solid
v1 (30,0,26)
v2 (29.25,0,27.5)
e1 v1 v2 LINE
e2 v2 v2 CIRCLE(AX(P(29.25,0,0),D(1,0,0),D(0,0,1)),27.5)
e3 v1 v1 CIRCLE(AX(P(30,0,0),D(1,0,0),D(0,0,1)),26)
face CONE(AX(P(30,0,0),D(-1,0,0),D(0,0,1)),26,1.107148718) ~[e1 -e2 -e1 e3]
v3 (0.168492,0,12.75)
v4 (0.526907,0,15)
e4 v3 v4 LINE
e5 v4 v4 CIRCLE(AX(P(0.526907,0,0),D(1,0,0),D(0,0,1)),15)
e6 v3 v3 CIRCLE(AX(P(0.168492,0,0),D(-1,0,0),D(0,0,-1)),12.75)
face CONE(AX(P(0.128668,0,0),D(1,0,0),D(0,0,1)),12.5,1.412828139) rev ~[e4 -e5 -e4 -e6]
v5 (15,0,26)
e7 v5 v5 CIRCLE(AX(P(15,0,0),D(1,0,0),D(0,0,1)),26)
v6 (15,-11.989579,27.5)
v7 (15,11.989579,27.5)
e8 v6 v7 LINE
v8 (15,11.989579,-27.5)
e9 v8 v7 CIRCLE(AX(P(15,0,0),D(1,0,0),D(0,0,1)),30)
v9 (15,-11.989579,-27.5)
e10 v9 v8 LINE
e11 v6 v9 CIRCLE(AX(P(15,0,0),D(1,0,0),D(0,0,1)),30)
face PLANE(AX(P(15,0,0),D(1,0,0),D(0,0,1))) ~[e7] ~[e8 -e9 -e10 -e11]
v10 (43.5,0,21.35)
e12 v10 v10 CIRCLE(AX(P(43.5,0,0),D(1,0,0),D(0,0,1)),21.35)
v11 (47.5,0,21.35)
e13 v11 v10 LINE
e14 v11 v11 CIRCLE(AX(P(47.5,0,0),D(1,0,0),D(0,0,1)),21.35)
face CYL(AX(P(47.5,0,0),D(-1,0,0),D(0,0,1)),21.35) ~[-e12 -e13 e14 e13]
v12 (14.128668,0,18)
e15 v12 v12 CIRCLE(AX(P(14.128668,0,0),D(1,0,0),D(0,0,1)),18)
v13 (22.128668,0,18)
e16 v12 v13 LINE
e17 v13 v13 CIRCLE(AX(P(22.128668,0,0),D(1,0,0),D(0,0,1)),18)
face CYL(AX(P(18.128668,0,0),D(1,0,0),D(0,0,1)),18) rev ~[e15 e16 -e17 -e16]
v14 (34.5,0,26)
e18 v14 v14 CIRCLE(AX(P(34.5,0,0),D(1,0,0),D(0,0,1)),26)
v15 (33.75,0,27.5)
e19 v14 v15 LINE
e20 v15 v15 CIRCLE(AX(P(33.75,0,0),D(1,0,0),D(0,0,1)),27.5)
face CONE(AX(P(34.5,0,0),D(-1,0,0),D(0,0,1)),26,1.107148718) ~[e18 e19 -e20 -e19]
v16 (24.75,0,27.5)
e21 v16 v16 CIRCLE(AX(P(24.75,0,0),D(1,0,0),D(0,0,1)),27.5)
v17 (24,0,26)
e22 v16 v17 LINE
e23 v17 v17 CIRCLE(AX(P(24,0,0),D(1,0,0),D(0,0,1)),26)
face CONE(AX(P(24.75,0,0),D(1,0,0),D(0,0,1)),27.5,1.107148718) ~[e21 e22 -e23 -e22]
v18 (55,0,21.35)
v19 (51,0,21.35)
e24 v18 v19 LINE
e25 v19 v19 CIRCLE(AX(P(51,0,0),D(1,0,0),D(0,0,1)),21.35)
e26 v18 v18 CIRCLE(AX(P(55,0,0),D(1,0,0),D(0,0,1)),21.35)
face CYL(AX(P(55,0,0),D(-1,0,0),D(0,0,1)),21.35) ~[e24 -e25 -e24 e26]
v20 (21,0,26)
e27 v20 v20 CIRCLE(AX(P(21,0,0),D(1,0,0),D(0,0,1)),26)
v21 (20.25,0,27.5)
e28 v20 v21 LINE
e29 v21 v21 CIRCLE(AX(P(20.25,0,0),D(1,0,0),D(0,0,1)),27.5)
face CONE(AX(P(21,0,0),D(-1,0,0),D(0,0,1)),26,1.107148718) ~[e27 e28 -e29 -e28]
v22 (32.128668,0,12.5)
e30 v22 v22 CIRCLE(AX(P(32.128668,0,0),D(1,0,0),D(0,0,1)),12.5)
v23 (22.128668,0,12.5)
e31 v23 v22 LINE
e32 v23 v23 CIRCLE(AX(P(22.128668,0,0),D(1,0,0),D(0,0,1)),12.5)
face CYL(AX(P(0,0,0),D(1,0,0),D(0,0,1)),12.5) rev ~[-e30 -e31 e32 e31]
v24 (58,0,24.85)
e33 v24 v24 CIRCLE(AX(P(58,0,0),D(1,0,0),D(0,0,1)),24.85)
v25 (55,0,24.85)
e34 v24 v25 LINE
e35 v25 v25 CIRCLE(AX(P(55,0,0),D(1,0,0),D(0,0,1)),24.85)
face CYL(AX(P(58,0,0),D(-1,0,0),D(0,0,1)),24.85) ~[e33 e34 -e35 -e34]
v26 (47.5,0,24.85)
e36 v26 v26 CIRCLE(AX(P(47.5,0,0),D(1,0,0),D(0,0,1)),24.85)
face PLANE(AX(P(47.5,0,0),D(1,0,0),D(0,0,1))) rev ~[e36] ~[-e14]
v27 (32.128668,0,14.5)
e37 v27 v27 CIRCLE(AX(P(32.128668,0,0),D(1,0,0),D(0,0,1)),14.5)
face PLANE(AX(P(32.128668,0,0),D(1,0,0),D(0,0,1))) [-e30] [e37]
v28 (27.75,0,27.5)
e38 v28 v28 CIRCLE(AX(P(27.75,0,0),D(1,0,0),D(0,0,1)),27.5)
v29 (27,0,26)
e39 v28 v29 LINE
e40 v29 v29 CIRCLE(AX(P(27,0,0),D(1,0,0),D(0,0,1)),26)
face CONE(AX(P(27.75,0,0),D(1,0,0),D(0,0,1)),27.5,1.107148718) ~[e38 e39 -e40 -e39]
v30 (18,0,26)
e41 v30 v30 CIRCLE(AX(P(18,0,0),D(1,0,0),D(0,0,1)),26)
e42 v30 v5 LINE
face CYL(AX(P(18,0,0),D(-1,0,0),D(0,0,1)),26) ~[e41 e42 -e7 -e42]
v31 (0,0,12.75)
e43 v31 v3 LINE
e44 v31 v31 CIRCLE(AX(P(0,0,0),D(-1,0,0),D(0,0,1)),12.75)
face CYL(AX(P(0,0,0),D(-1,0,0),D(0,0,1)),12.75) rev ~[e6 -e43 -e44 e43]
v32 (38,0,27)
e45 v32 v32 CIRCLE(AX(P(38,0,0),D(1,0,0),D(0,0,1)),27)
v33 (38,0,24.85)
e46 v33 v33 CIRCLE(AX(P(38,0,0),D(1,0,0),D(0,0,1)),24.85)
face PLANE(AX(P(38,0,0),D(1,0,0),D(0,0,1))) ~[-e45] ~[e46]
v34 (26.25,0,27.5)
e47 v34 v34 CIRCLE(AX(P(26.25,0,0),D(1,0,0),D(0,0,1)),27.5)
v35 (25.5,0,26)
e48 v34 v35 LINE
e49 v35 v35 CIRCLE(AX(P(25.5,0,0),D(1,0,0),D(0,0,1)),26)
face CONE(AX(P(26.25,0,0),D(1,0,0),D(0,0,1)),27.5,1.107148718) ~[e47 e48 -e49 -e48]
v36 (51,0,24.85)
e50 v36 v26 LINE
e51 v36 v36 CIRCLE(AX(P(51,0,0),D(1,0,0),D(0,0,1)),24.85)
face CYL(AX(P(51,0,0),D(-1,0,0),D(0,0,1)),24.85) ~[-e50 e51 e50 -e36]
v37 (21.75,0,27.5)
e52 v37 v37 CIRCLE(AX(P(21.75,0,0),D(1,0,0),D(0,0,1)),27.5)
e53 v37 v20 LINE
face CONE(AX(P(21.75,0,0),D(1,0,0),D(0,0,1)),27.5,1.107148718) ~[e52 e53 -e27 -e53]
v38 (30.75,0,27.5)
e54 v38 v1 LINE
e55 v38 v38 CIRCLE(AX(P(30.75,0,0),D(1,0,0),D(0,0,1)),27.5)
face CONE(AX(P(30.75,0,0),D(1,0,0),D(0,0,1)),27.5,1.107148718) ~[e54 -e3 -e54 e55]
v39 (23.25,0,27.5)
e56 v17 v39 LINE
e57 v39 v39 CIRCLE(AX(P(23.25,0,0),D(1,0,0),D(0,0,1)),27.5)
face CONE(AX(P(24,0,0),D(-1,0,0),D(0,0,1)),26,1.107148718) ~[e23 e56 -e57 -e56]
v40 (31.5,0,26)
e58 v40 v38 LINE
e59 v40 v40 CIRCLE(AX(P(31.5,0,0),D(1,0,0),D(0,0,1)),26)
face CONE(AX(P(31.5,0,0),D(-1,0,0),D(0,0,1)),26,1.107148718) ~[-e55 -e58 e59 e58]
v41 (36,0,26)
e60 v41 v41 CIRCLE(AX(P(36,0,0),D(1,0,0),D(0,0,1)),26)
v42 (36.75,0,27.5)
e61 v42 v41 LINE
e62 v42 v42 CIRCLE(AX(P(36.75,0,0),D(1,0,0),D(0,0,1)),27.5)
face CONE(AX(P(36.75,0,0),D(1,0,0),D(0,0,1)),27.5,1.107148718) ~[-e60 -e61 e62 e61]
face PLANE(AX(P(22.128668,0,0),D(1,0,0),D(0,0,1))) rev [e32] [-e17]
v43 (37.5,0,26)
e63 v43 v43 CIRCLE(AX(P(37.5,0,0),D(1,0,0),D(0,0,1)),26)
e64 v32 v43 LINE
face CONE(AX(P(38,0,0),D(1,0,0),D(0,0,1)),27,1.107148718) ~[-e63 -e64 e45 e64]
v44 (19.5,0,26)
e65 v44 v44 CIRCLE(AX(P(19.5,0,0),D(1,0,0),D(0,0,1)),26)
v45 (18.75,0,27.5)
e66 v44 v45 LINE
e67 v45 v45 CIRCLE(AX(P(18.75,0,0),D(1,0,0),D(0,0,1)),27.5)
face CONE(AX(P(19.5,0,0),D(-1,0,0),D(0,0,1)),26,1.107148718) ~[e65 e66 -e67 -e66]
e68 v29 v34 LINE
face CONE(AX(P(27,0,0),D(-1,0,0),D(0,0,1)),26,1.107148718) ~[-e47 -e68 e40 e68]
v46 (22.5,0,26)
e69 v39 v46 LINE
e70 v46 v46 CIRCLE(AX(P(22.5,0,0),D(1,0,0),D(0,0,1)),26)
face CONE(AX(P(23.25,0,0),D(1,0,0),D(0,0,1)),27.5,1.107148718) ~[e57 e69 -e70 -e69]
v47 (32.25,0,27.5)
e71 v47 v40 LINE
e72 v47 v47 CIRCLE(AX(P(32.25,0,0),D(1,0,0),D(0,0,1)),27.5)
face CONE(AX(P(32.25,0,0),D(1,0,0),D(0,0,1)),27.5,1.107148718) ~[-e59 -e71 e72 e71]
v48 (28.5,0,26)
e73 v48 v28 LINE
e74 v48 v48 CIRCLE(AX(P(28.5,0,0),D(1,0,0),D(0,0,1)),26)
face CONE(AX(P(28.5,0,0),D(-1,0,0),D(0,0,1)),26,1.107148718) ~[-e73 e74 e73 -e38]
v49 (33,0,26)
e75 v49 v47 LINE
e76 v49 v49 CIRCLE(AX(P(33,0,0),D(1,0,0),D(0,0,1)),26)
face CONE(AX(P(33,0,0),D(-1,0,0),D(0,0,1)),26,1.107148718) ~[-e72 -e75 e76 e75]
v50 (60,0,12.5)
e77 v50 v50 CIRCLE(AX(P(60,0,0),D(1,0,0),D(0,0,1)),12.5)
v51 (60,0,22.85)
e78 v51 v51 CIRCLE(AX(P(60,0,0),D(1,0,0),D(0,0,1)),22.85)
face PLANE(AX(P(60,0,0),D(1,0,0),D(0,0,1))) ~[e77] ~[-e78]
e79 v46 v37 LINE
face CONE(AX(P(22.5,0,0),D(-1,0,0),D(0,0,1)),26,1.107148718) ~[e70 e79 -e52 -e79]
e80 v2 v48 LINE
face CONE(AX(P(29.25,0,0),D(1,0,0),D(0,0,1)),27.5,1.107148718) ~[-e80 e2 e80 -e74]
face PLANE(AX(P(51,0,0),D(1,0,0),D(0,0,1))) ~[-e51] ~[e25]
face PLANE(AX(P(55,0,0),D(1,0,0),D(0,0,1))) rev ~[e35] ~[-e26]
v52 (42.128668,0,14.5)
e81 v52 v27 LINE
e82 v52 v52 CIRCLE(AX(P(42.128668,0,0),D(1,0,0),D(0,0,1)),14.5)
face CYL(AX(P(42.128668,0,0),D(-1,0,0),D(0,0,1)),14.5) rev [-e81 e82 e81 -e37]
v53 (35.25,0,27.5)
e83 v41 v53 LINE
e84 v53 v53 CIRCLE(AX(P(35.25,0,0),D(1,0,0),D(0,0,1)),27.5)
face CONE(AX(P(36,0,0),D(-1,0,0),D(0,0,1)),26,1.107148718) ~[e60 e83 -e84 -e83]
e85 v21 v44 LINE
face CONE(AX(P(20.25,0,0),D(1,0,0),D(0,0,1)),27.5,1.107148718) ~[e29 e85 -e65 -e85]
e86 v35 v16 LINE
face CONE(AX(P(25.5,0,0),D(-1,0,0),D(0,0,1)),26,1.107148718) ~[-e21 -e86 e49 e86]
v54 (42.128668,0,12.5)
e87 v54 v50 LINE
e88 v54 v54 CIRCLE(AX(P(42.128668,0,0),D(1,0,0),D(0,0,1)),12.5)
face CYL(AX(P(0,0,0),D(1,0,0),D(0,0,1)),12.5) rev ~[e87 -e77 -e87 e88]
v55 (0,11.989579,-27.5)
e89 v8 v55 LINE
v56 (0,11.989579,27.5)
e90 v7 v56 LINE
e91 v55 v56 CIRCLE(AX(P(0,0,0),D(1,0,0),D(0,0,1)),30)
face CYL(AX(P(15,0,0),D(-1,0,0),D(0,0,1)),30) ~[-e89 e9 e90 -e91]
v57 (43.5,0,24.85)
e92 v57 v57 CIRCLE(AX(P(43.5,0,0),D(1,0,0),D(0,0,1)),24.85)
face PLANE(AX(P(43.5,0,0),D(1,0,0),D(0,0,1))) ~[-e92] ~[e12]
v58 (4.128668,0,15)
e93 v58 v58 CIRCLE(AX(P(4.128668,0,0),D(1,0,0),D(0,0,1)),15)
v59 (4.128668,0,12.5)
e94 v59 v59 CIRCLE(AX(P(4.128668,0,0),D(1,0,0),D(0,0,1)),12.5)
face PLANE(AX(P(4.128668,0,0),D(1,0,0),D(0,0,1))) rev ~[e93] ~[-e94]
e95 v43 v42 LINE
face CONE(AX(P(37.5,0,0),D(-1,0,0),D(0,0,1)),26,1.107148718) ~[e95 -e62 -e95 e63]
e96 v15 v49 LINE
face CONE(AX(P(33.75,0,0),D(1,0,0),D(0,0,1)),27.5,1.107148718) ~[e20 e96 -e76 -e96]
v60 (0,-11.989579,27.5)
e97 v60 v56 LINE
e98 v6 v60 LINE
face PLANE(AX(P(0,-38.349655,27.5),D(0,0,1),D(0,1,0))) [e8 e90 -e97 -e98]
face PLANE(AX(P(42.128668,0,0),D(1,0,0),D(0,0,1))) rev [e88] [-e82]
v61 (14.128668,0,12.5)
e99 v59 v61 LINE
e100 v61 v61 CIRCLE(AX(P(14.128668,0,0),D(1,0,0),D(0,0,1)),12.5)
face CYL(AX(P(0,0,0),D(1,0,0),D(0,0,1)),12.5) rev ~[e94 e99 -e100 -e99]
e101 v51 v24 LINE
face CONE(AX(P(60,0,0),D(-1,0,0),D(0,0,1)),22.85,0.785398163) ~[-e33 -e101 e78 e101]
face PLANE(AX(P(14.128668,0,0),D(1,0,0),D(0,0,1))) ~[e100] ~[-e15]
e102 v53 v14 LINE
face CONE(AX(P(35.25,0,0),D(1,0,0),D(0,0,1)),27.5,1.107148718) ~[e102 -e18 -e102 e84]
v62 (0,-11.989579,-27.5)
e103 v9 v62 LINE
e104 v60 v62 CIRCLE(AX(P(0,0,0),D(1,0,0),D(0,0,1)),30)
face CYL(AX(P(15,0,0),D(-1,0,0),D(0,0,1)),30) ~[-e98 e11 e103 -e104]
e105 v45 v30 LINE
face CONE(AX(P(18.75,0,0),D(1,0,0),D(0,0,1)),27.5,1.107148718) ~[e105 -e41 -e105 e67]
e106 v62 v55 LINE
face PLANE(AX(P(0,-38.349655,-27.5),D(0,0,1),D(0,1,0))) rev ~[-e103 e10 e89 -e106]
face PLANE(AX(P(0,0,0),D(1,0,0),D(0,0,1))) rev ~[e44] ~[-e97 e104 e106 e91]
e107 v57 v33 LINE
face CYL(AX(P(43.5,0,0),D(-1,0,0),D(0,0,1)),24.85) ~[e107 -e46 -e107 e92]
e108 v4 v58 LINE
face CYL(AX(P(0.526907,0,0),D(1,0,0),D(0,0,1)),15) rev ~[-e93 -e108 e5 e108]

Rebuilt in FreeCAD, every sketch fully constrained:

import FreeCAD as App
import Part
import Sketcher

V = App.Vector
Q = App.Units.Quantity


def add_polygon(sketch, points):
    """Adds a closed chain of lines whose ends are joined by coincident constraints."""
    first, n = sketch.GeometryCount, len(points)
    for a, b in zip(points, points[1:] + points[:1]):
        sketch.addGeometry(Part.LineSegment(App.Vector(*a, 0), App.Vector(*b, 0)), False)
    for i in range(n):
        sketch.addConstraint(Sketcher.Constraint("Coincident", first + i, 2, first + (i + 1) % n, 1))

doc = App.newDocument("Part")
body = doc.addObject("PartDesign::Body", "Body")

sketch1 = body.newObject("Sketcher::SketchObject", "Sketch")
sketch1.AttachmentSupport = (doc.getObject("XY_Plane"), [""])
sketch1.MapMode = "FlatFace"
add_polygon(sketch1, [(0, 12.5), (60, 12.5), (60, 22.9), (58, 24.9), (55, 24.9), (55, 21.4), (51, 21.4), (51, 24.9), (47.5, 24.9), (47.5, 21.4), (43.5, 21.4), (43.5, 24.9), (38, 24.9), (38, 27), (37.5, 26), (36.8, 27.5), (36, 26), (35.2, 27.5), (34.5, 26), (33.8, 27.5), (33, 26), (32.2, 27.5), (31.5, 26), (30.8, 27.5), (30, 26), (29.2, 27.5), (28.5, 26), (27.8, 27.5), (27, 26), (26.2, 27.5), (25.5, 26), (24.8, 27.5), (24, 26), (23.2, 27.5), (22.5, 26), (21.8, 27.5), (21, 26), (20.2, 27.5), (19.5, 26), (18.8, 27.5), (18, 26), (15, 26), (15, 30), (0, 30)])
sketch1.addConstraint(Sketcher.Constraint("Horizontal", 0))
sketch1.addConstraint(Sketcher.Constraint("Vertical", 1))
sketch1.addConstraint(Sketcher.Constraint("Horizontal", 3))
sketch1.addConstraint(Sketcher.Constraint("Vertical", 4))
sketch1.addConstraint(Sketcher.Constraint("Horizontal", 5))
sketch1.addConstraint(Sketcher.Constraint("Vertical", 6))
sketch1.addConstraint(Sketcher.Constraint("Horizontal", 7))
sketch1.addConstraint(Sketcher.Constraint("Vertical", 8))
sketch1.addConstraint(Sketcher.Constraint("Horizontal", 9))
sketch1.addConstraint(Sketcher.Constraint("Vertical", 10))
sketch1.addConstraint(Sketcher.Constraint("Horizontal", 11))
sketch1.addConstraint(Sketcher.Constraint("Vertical", 12))
sketch1.addConstraint(Sketcher.Constraint("Horizontal", 40))
sketch1.addConstraint(Sketcher.Constraint("Vertical", 41))
sketch1.addConstraint(Sketcher.Constraint("Horizontal", 42))
sketch1.addConstraint(Sketcher.Constraint("Vertical", 43))
sketch1.addConstraint(Sketcher.Constraint("PointOnObject", 42, 2, -2))
sketch1.addConstraint(Sketcher.Constraint("Parallel", 13, 15))
sketch1.addConstraint(Sketcher.Constraint("Parallel", 14, 16))
sketch1.addConstraint(Sketcher.Constraint("Parallel", 15, 17))
sketch1.addConstraint(Sketcher.Constraint("Parallel", 16, 18))
sketch1.addConstraint(Sketcher.Constraint("Parallel", 17, 19))
sketch1.addConstraint(Sketcher.Constraint("Parallel", 18, 20))
sketch1.addConstraint(Sketcher.Constraint("Parallel", 19, 21))
sketch1.addConstraint(Sketcher.Constraint("Parallel", 20, 22))
sketch1.addConstraint(Sketcher.Constraint("Parallel", 21, 23))
sketch1.addConstraint(Sketcher.Constraint("Parallel", 22, 24))
sketch1.addConstraint(Sketcher.Constraint("Parallel", 23, 25))
sketch1.addConstraint(Sketcher.Constraint("Parallel", 24, 26))
sketch1.addConstraint(Sketcher.Constraint("Parallel", 25, 27))
sketch1.addConstraint(Sketcher.Constraint("Parallel", 26, 28))
sketch1.addConstraint(Sketcher.Constraint("Parallel", 27, 29))
sketch1.addConstraint(Sketcher.Constraint("Parallel", 28, 30))
sketch1.addConstraint(Sketcher.Constraint("Parallel", 29, 31))
sketch1.addConstraint(Sketcher.Constraint("Parallel", 30, 32))
sketch1.addConstraint(Sketcher.Constraint("Parallel", 31, 33))
sketch1.addConstraint(Sketcher.Constraint("Parallel", 32, 34))
sketch1.addConstraint(Sketcher.Constraint("Parallel", 33, 35))
sketch1.addConstraint(Sketcher.Constraint("Parallel", 34, 36))
sketch1.addConstraint(Sketcher.Constraint("Parallel", 35, 37))
sketch1.addConstraint(Sketcher.Constraint("Parallel", 36, 38))
sketch1.addConstraint(Sketcher.Constraint("Parallel", 37, 39))
sketch1.addConstraint(Sketcher.Constraint("Horizontal", 3, 2, 6, 2))
sketch1.addConstraint(Sketcher.Constraint("Horizontal", 5, 2, 8, 2))
sketch1.addConstraint(Sketcher.Constraint("Horizontal", 7, 2, 10, 2))
sketch1.addConstraint(Sketcher.Constraint("Horizontal", 13, 2, 15, 2))
sketch1.addConstraint(Sketcher.Constraint("Horizontal", 14, 2, 16, 2))
sketch1.addConstraint(Sketcher.Constraint("Horizontal", 15, 2, 17, 2))
sketch1.addConstraint(Sketcher.Constraint("Horizontal", 16, 2, 18, 2))
sketch1.addConstraint(Sketcher.Constraint("Horizontal", 17, 2, 19, 2))
sketch1.addConstraint(Sketcher.Constraint("Horizontal", 18, 2, 20, 2))
sketch1.addConstraint(Sketcher.Constraint("Horizontal", 19, 2, 21, 2))
sketch1.addConstraint(Sketcher.Constraint("Horizontal", 20, 2, 22, 2))
sketch1.addConstraint(Sketcher.Constraint("Horizontal", 21, 2, 23, 2))
sketch1.addConstraint(Sketcher.Constraint("Horizontal", 22, 2, 24, 2))
sketch1.addConstraint(Sketcher.Constraint("Horizontal", 23, 2, 25, 2))
sketch1.addConstraint(Sketcher.Constraint("Horizontal", 24, 2, 26, 2))
sketch1.addConstraint(Sketcher.Constraint("Horizontal", 25, 2, 27, 2))
sketch1.addConstraint(Sketcher.Constraint("Horizontal", 26, 2, 28, 2))
sketch1.addConstraint(Sketcher.Constraint("Horizontal", 27, 2, 29, 2))
sketch1.addConstraint(Sketcher.Constraint("Horizontal", 28, 2, 30, 2))
sketch1.addConstraint(Sketcher.Constraint("Horizontal", 29, 2, 31, 2))
sketch1.addConstraint(Sketcher.Constraint("Horizontal", 30, 2, 32, 2))
sketch1.addConstraint(Sketcher.Constraint("Horizontal", 31, 2, 33, 2))
sketch1.addConstraint(Sketcher.Constraint("Horizontal", 32, 2, 34, 2))
sketch1.addConstraint(Sketcher.Constraint("Horizontal", 33, 2, 35, 2))
sketch1.addConstraint(Sketcher.Constraint("Horizontal", 34, 2, 36, 2))
sketch1.addConstraint(Sketcher.Constraint("Horizontal", 35, 2, 37, 2))
sketch1.addConstraint(Sketcher.Constraint("Horizontal", 36, 2, 38, 2))
sketch1.addConstraint(Sketcher.Constraint("Horizontal", 37, 2, 39, 2))
sketch1.addConstraint(Sketcher.Constraint("Equal", 5, 9))
sketch1.addConstraint(Sketcher.Constraint("Equal", 3, 40))
sketch1.addConstraint(Sketcher.Constraint("Equal", 7, 4))
sketch1.addConstraint(Sketcher.Constraint("Equal", 9, 41))
sketch1.addConstraint(Sketcher.Constraint("Equal", 14, 15))
sketch1.addConstraint(Sketcher.Constraint("DistanceX", 0, 1, 0, 2, Q("60 mm")))
sketch1.addConstraint(Sketcher.Constraint("DistanceX", 3, 2, 3, 1, Q("3 mm")))
sketch1.addConstraint(Sketcher.Constraint("DistanceX", 5, 2, 5, 1, Q("4 mm")))
sketch1.addConstraint(Sketcher.Constraint("DistanceX", 42, 2, 42, 1, Q("15 mm")))
sketch1.addConstraint(Sketcher.Constraint("Angle", 2, Q("135 deg")))
sketch1.addConstraint(Sketcher.Constraint("DistanceX", 7, 2, 7, 1, Q("3.5 mm")))
sketch1.addConstraint(Sketcher.Constraint("DistanceX", 11, 2, 11, 1, Q("5.5 mm")))
sketch1.addConstraint(Sketcher.Constraint("DistanceY", 43, 2, 43, 1, Q("17.5 mm")))
sketch1.addConstraint(Sketcher.Constraint("DistanceX", -1, 1, 2, 2, Q("58 mm")))
sketch1.addConstraint(Sketcher.Constraint("DistanceY", -1, 1, 12, 2, Q("27 mm")))
sketch1.addConstraint(Sketcher.Constraint("DistanceY", -1, 1, 13, 2, Q("26 mm")))
sketch1.addConstraint(Sketcher.Constraint("DistanceX", -1, 1, 15, 2, Q("36 mm")))
sketch1.addConstraint(Sketcher.Constraint("DistanceY", 1, 1, 1, 2, Q("10.35 mm")))
revolution = body.newObject("PartDesign::Revolution", "Revolution")
revolution.Profile = sketch1
revolution.ReferenceAxis = (sketch1, ["H_Axis"])
revolution.Angle = 360

sketch2 = body.newObject("Sketcher::SketchObject", "Sketch001")
sketch2.AttachmentSupport = (doc.getObject("YZ_Plane"), [""])
sketch2.MapMode = "FlatFace"
add_polygon(sketch2, [(41, -41), (-41, -41), (-41, 41), (41, 41)])
add_polygon(sketch2, [(-38, 28), (-38, -28), (38, -28), (38, 28)])
sketch2.addConstraint(Sketcher.Constraint("Horizontal", 0))
sketch2.addConstraint(Sketcher.Constraint("Vertical", 1))
sketch2.addConstraint(Sketcher.Constraint("Horizontal", 2))
sketch2.addConstraint(Sketcher.Constraint("Vertical", 3))
sketch2.addConstraint(Sketcher.Constraint("Vertical", 4))
sketch2.addConstraint(Sketcher.Constraint("Horizontal", 5))
sketch2.addConstraint(Sketcher.Constraint("Vertical", 6))
sketch2.addConstraint(Sketcher.Constraint("Horizontal", 7))
sketch2.addConstraint(Sketcher.Constraint("Symmetric", 0, 2, 2, 2, -1, 1))
sketch2.addConstraint(Sketcher.Constraint("Symmetric", 4, 2, 6, 2, -1, 1))
sketch2.addConstraint(Sketcher.Constraint("Equal", 2, 1))
sketch2.addConstraint(Sketcher.Constraint("DistanceY", 4, 2, 4, 1, Q("55 mm")))
sketch2.addConstraint(Sketcher.Constraint("DistanceX", 0, 2, 0, 1, Q("82.784 mm")))
sketch2.addConstraint(Sketcher.Constraint("DistanceX", 5, 1, 5, 2, Q("76.699311 mm")))
pocket1 = body.newObject("PartDesign::Pocket", "Pocket")
pocket1.Profile = sketch2
pocket1.Length = 17
pocket1.Reversed = True

sketch3 = body.newObject("Sketcher::SketchObject", "Sketch002")
sketch3.AttachmentSupport = (doc.getObject("XZ_Plane"), [""])
sketch3.MapMode = "FlatFace"
add_polygon(sketch3, [(4.1, -11.2), (4.1, -15), (0.5, -15), (0.1, -12.5), (0.1, -11.2)])
add_polygon(sketch3, [(14.1, -18), (14.1, -10.5), (22.1, -10.5), (22.1, -18)])
add_polygon(sketch3, [(32.1, -11.2), (42.1, -11.2), (42.1, -14.5), (32.1, -14.5)])
sketch3.addConstraint(Sketcher.Constraint("Vertical", 0))
sketch3.addConstraint(Sketcher.Constraint("Horizontal", 1))
sketch3.addConstraint(Sketcher.Constraint("Vertical", 3))
sketch3.addConstraint(Sketcher.Constraint("Horizontal", 4))
sketch3.addConstraint(Sketcher.Constraint("Vertical", 5))
sketch3.addConstraint(Sketcher.Constraint("Horizontal", 6))
sketch3.addConstraint(Sketcher.Constraint("Vertical", 7))
sketch3.addConstraint(Sketcher.Constraint("Horizontal", 8))
sketch3.addConstraint(Sketcher.Constraint("Horizontal", 9))
sketch3.addConstraint(Sketcher.Constraint("Vertical", 10))
sketch3.addConstraint(Sketcher.Constraint("Horizontal", 11))
sketch3.addConstraint(Sketcher.Constraint("Vertical", 12))
sketch3.addConstraint(Sketcher.Constraint("Horizontal", 4, 2, 9, 2))
sketch3.addConstraint(Sketcher.Constraint("DistanceX", 4, 1, 4, 2, Q("4 mm")))
sketch3.addConstraint(Sketcher.Constraint("DistanceX", 6, 1, 6, 2, Q("8 mm")))
sketch3.addConstraint(Sketcher.Constraint("DistanceX", 9, 1, 9, 2, Q("10 mm")))
sketch3.addConstraint(Sketcher.Constraint("DistanceY", 0, 2, -1, 1, Q("15 mm")))
sketch3.addConstraint(Sketcher.Constraint("DistanceY", 7, 2, -1, 1, Q("18 mm")))
sketch3.addConstraint(Sketcher.Constraint("DistanceX", 4, 2, 5, 2, Q("10 mm")))
sketch3.addConstraint(Sketcher.Constraint("DistanceX", 6, 2, 9, 2, Q("20 mm")))
sketch3.addConstraint(Sketcher.Constraint("DistanceY", 2, 2, -1, 1, Q("12.5 mm")))
sketch3.addConstraint(Sketcher.Constraint("DistanceY", 10, 2, -1, 1, Q("14.5 mm")))
sketch3.addConstraint(Sketcher.Constraint("DistanceX", 1, 2, 1, 1, Q("3.601761 mm")))
sketch3.addConstraint(Sketcher.Constraint("DistanceY", 0, 2, 0, 1, Q("3.780085 mm")))
sketch3.addConstraint(Sketcher.Constraint("DistanceY", 5, 1, 5, 2, Q("7.464975 mm")))
sketch3.addConstraint(Sketcher.Constraint("DistanceX", -1, 1, 0, 2, Q("4.128668 mm")))
groove = body.newObject("PartDesign::Groove", "Groove")
groove.Profile = sketch3
groove.ReferenceAxis = (sketch3, ["H_Axis"])
groove.Angle = 360

sketch4 = body.newObject("Sketcher::SketchObject", "Sketch003")
sketch4.AttachmentSupport = (doc.getObject("YZ_Plane"), [""])
sketch4.MapMode = "FlatFace"
sketch4.addGeometry(Part.Circle(V(0, 0, 0), V(0, 0, 1), 13), False)
sketch4.addConstraint(Sketcher.Constraint("Coincident", 0, 3, -1, 1))
sketch4.addConstraint(Sketcher.Constraint("Diameter", 0, Q("25.5 mm")))
pocket2 = body.newObject("PartDesign::Pocket", "Pocket001")
pocket2.Profile = sketch4
pocket2.Length = 1
pocket2.Reversed = True

doc.recompute()
